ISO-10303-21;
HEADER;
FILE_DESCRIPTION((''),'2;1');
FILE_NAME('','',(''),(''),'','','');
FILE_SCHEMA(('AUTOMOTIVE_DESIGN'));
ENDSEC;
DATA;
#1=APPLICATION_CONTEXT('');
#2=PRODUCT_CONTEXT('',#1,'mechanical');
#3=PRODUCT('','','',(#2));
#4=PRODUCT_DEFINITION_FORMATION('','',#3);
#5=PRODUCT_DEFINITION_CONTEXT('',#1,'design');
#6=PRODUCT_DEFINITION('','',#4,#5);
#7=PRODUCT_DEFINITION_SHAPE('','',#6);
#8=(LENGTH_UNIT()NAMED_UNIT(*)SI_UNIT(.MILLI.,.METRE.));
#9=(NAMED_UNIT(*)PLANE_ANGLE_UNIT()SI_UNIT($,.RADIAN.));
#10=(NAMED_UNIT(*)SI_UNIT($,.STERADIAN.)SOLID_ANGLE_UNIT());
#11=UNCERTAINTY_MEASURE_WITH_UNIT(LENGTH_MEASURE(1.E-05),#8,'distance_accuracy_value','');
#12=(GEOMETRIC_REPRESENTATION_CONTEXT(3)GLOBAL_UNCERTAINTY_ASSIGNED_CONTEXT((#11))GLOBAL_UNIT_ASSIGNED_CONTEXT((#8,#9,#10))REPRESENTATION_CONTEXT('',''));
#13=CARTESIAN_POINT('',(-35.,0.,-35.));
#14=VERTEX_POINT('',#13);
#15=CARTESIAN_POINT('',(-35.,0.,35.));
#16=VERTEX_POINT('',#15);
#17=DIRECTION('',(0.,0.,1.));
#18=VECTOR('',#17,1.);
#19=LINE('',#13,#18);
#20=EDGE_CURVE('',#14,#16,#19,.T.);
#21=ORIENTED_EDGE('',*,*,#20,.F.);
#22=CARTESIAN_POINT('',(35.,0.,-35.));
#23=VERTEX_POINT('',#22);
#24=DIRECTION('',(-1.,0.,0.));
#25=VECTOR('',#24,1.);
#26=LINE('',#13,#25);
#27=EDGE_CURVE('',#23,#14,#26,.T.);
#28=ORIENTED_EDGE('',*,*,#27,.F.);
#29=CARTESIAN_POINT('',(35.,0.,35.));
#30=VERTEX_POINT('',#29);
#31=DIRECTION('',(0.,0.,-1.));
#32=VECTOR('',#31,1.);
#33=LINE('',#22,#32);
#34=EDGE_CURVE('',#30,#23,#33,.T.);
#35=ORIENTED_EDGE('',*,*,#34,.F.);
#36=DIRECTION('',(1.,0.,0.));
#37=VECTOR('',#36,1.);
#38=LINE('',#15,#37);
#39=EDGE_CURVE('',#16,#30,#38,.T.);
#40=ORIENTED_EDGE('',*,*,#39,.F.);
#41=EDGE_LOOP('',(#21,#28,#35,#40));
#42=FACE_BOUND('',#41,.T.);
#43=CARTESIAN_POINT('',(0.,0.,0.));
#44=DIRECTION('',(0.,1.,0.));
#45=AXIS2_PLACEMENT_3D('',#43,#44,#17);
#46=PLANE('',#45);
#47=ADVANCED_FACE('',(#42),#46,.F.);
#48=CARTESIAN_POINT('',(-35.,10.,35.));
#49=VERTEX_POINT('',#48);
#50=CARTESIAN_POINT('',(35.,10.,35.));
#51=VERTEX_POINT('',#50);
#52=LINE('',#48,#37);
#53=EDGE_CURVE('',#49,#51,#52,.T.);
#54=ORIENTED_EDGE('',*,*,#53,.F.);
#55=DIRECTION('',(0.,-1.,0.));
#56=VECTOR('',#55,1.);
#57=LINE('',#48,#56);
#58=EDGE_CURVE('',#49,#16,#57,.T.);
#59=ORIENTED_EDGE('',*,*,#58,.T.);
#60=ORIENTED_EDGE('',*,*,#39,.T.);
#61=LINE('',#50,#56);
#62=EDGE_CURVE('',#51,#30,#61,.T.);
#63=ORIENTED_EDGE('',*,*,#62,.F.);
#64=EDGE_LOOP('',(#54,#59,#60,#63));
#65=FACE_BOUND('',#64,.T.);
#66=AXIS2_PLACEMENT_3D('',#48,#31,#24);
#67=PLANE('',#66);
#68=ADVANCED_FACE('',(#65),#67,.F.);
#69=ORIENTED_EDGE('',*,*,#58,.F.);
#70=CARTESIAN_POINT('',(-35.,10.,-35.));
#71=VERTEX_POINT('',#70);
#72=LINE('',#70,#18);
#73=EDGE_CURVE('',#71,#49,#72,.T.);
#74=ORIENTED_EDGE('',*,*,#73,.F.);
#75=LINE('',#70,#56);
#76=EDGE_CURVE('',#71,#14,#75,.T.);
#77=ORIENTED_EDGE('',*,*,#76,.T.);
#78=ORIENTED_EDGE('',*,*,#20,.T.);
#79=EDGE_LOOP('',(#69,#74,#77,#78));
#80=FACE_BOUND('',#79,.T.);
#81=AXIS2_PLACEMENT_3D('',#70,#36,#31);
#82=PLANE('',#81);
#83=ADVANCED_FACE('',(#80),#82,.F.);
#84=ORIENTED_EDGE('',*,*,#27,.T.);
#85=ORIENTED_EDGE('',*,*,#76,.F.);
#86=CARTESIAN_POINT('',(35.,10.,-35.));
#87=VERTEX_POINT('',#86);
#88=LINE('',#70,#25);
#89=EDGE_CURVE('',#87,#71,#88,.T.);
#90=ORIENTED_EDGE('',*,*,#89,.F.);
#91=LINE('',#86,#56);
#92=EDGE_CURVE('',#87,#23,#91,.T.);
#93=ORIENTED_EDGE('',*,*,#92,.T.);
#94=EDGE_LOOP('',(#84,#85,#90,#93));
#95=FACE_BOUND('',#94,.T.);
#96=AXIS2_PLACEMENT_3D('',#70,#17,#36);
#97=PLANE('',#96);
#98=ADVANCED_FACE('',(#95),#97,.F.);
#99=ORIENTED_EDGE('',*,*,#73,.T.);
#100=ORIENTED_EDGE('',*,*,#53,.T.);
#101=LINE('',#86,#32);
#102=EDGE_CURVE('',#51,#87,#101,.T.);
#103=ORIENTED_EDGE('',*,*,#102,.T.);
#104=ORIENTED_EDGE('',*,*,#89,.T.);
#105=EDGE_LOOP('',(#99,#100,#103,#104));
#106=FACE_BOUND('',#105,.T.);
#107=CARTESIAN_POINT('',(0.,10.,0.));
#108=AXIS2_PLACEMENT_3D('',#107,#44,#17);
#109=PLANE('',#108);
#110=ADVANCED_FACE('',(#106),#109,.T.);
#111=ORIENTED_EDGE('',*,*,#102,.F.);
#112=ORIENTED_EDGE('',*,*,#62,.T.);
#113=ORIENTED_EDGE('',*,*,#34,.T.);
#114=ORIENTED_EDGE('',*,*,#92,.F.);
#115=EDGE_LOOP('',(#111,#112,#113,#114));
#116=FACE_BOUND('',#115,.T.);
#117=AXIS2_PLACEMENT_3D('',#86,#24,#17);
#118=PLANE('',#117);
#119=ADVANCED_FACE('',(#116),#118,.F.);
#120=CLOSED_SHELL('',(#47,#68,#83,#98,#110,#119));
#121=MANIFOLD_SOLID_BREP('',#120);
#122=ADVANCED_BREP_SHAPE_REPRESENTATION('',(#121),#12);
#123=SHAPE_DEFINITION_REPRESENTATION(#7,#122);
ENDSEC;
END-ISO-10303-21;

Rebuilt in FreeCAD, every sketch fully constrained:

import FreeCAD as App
import Part
import Sketcher
from FreeCAD import Vector
Q = App.Units.Quantity

doc = App.newDocument("Part")
body = doc.addObject("PartDesign::Body", "Body")

# Sketch on XZ plane
sketch1 = doc.addObject("Sketcher::SketchObject", "Sketch")
body.addObject(sketch1)
sketch1.AttachmentSupport = (doc.XZ_Plane, [""])
sketch1.MapMode = "FlatFace"
sketch1.addGeometry([
    Part.LineSegment(Vector(-35, -35, 0), Vector(-35, 35, 0)),
    Part.LineSegment(Vector(-35, 35, 0), Vector(35, 35, 0)),
    Part.LineSegment(Vector(35, 35, 0), Vector(35, -35, 0)),
    Part.LineSegment(Vector(35, -35, 0), Vector(-35, -35, 0)),
], False)
sketch1.addConstraint([
    Sketcher.Constraint("Coincident", 0, 2, 1, 1),
    Sketcher.Constraint("Coincident", 1, 2, 2, 1),
    Sketcher.Constraint("Coincident", 2, 2, 3, 1),
    Sketcher.Constraint("Coincident", 3, 2, 0, 1),
    Sketcher.Constraint("Vertical", 0),
    Sketcher.Constraint("Horizontal", 1),
    Sketcher.Constraint("Vertical", 2),
    Sketcher.Constraint("Horizontal", 3),
    Sketcher.Constraint("Symmetric", 0, 2, 2, 2, -1, 1),
    Sketcher.Constraint("Equal", 3, 0),
    Sketcher.Constraint("DistanceX", 1, 1, 1, 2, Q("70 mm")),
])
pad1 = doc.addObject("PartDesign::Pad", "Pad")
body.addObject(pad1)
pad1.Profile = sketch1
pad1.Length = 10
pad1.Reversed = True

doc.recompute()
